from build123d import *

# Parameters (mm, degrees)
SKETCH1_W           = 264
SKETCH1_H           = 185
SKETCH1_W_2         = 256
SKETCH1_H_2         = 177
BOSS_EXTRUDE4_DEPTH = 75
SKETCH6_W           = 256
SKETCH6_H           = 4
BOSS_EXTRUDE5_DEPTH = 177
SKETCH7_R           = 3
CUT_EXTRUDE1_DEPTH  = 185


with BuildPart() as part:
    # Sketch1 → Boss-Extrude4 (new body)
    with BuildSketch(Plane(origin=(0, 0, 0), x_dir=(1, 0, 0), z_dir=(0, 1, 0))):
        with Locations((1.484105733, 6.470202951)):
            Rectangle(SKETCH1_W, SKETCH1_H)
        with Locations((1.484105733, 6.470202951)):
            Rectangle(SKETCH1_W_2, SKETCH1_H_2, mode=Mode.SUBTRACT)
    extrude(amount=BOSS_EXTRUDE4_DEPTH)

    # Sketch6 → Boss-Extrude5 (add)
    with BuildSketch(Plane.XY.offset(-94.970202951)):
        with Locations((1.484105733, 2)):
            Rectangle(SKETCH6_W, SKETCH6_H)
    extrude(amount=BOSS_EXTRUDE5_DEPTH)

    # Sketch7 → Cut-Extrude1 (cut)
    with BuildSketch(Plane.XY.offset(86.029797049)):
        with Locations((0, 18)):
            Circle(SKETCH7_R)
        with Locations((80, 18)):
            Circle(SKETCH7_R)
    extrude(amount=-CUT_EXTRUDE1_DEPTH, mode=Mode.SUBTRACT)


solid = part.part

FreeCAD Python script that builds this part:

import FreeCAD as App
import Part
import Sketcher
from FreeCAD import Vector
Q = App.Units.Quantity

doc = App.newDocument("Part")
body = doc.addObject("PartDesign::Body", "Body")

# Sketch on XZ plane
sketch1 = body.newObject("Sketcher::SketchObject", "Sketch")
sketch1.AttachmentSupport = (doc.getObject("XZ_Plane"), [""])
sketch1.MapMode = "FlatFace"
sketch1.addGeometry(Part.LineSegment(Vector(-130.515894, -98.970203, 0), Vector(-130.515894, 86.029797, 0)), False)
sketch1.addGeometry(Part.LineSegment(Vector(-130.515894, 86.029797, 0), Vector(133.484106, 86.029797, 0)), False)
sketch1.addGeometry(Part.LineSegment(Vector(133.484106, 86.029797, 0), Vector(133.484106, -98.970203, 0)), False)
sketch1.addGeometry(Part.LineSegment(Vector(133.484106, -98.970203, 0), Vector(-130.515894, -98.970203, 0)), False)
sketch1.addGeometry(Part.LineSegment(Vector(129.484106, 82.029797, 0), Vector(-126.515894, 82.029797, 0)), False)
sketch1.addGeometry(Part.LineSegment(Vector(-126.515894, 82.029797, 0), Vector(-126.515894, -94.970203, 0)), False)
sketch1.addGeometry(Part.LineSegment(Vector(-126.515894, -94.970203, 0), Vector(129.484106, -94.970203, 0)), False)
sketch1.addGeometry(Part.LineSegment(Vector(129.484106, -94.970203, 0), Vector(129.484106, 82.029797, 0)), False)
sketch1.addConstraint(Sketcher.Constraint("Coincident", 0, 2, 1, 1))
sketch1.addConstraint(Sketcher.Constraint("Coincident", 1, 2, 2, 1))
sketch1.addConstraint(Sketcher.Constraint("Coincident", 2, 2, 3, 1))
sketch1.addConstraint(Sketcher.Constraint("Coincident", 3, 2, 0, 1))
sketch1.addConstraint(Sketcher.Constraint("Coincident", 4, 2, 5, 1))
sketch1.addConstraint(Sketcher.Constraint("Coincident", 5, 2, 6, 1))
sketch1.addConstraint(Sketcher.Constraint("Coincident", 6, 2, 7, 1))
sketch1.addConstraint(Sketcher.Constraint("Coincident", 7, 2, 4, 1))
sketch1.addConstraint(Sketcher.Constraint("Vertical", 0))
sketch1.addConstraint(Sketcher.Constraint("Horizontal", 1))
sketch1.addConstraint(Sketcher.Constraint("Vertical", 2))
sketch1.addConstraint(Sketcher.Constraint("Horizontal", 3))
sketch1.addConstraint(Sketcher.Constraint("Horizontal", 4))
sketch1.addConstraint(Sketcher.Constraint("Vertical", 5))
sketch1.addConstraint(Sketcher.Constraint("Horizontal", 6))
sketch1.addConstraint(Sketcher.Constraint("Vertical", 7))
sketch1.addConstraint(Sketcher.Constraint("DistanceX", 1, 1, 1, 2, Q("264 mm")))
sketch1.addConstraint(Sketcher.Constraint("DistanceX", 4, 2, 4, 1, Q("256 mm")))
sketch1.addConstraint(Sketcher.Constraint("DistanceY", 0, 1, 0, 2, Q("185 mm")))
sketch1.addConstraint(Sketcher.Constraint("DistanceY", 5, 2, 5, 1, Q("177 mm")))
sketch1.addConstraint(Sketcher.Constraint("DistanceX", 0, 2, 4, 2, Q("4 mm")))
sketch1.addConstraint(Sketcher.Constraint("DistanceY", 4, 2, 0, 2, Q("4 mm")))
sketch1.addConstraint(Sketcher.Constraint("DistanceX", 0, 2, -1, 1, Q("130.515894 mm")))
sketch1.addConstraint(Sketcher.Constraint("DistanceY", -1, 1, 0, 2, Q("86.029797 mm")))
pad1 = body.newObject("PartDesign::Pad", "Pad")
pad1.Profile = sketch1
pad1.Length = 75
pad1.Reversed = True

# Sketch on XY plane
sketch2 = body.newObject("Sketcher::SketchObject", "Sketch001")
sketch2.AttachmentSupport = (doc.getObject("XY_Plane"), [""])
sketch2.MapMode = "FlatFace"
sketch2.AttachmentOffset = App.Placement(Vector(0, 0, -94.970203), App.Rotation())
sketch2.addGeometry(Part.LineSegment(Vector(-126.515894, 4, 0), Vector(-126.515894, 0, 0)), False)
sketch2.addGeometry(Part.LineSegment(Vector(-126.515894, 0, 0), Vector(129.484106, 0, 0)), False)
sketch2.addGeometry(Part.LineSegment(Vector(129.484106, 0, 0), Vector(129.484106, 4, 0)), False)
sketch2.addGeometry(Part.LineSegment(Vector(129.484106, 4, 0), Vector(-126.515894, 4, 0)), False)
sketch2.addConstraint(Sketcher.Constraint("Coincident", 0, 2, 1, 1))
sketch2.addConstraint(Sketcher.Constraint("Coincident", 1, 2, 2, 1))
sketch2.addConstraint(Sketcher.Constraint("Coincident", 2, 2, 3, 1))
sketch2.addConstraint(Sketcher.Constraint("Coincident", 3, 2, 0, 1))
sketch2.addConstraint(Sketcher.Constraint("Vertical", 0))
sketch2.addConstraint(Sketcher.Constraint("Horizontal", 1))
sketch2.addConstraint(Sketcher.Constraint("Vertical", 2))
sketch2.addConstraint(Sketcher.Constraint("Horizontal", 3))
sketch2.addConstraint(Sketcher.Constraint("PointOnObject", 0, 2, -1))
sketch2.addConstraint(Sketcher.Constraint("DistanceX", 1, 1, 1, 2, Q("256 mm")))
sketch2.addConstraint(Sketcher.Constraint("DistanceY", 0, 2, 0, 1, Q("4 mm")))
sketch2.addConstraint(Sketcher.Constraint("DistanceX", 0, 2, -1, 1, Q("126.515894 mm")))
pad2 = body.newObject("PartDesign::Pad", "Pad001")
pad2.Profile = sketch2
pad2.Length = 177

# Sketch on XY plane
sketch3 = body.newObject("Sketcher::SketchObject", "Sketch002")
sketch3.AttachmentSupport = (doc.getObject("XY_Plane"), [""])
sketch3.MapMode = "FlatFace"
sketch3.AttachmentOffset = App.Placement(Vector(0, 0, 86.029797), App.Rotation())
sketch3.addGeometry(Part.Circle(Vector(0, 18, 0), Vector(0, 0, 1), 3), False)
sketch3.addGeometry(Part.Circle(Vector(80, 18, 0), Vector(0, 0, 1), 3), False)
sketch3.addConstraint(Sketcher.Constraint("Equal", 0, 1))
sketch3.addConstraint(Sketcher.Constraint("PointOnObject", 0, 3, -2))
sketch3.addConstraint(Sketcher.Constraint("Horizontal", 0, 3, 1, 3))
sketch3.addConstraint(Sketcher.Constraint("Diameter", 0, Q("6 mm")))
sketch3.addConstraint(Sketcher.Constraint("DistanceY", -1, 1, 0, 3, Q("18 mm")))
sketch3.addConstraint(Sketcher.Constraint("DistanceX", -1, 1, 1, 3, Q("80 mm")))
pocket1 = body.newObject("PartDesign::Pocket", "Pocket")
pocket1.Profile = sketch3
pocket1.Length = 185

doc.recompute()
